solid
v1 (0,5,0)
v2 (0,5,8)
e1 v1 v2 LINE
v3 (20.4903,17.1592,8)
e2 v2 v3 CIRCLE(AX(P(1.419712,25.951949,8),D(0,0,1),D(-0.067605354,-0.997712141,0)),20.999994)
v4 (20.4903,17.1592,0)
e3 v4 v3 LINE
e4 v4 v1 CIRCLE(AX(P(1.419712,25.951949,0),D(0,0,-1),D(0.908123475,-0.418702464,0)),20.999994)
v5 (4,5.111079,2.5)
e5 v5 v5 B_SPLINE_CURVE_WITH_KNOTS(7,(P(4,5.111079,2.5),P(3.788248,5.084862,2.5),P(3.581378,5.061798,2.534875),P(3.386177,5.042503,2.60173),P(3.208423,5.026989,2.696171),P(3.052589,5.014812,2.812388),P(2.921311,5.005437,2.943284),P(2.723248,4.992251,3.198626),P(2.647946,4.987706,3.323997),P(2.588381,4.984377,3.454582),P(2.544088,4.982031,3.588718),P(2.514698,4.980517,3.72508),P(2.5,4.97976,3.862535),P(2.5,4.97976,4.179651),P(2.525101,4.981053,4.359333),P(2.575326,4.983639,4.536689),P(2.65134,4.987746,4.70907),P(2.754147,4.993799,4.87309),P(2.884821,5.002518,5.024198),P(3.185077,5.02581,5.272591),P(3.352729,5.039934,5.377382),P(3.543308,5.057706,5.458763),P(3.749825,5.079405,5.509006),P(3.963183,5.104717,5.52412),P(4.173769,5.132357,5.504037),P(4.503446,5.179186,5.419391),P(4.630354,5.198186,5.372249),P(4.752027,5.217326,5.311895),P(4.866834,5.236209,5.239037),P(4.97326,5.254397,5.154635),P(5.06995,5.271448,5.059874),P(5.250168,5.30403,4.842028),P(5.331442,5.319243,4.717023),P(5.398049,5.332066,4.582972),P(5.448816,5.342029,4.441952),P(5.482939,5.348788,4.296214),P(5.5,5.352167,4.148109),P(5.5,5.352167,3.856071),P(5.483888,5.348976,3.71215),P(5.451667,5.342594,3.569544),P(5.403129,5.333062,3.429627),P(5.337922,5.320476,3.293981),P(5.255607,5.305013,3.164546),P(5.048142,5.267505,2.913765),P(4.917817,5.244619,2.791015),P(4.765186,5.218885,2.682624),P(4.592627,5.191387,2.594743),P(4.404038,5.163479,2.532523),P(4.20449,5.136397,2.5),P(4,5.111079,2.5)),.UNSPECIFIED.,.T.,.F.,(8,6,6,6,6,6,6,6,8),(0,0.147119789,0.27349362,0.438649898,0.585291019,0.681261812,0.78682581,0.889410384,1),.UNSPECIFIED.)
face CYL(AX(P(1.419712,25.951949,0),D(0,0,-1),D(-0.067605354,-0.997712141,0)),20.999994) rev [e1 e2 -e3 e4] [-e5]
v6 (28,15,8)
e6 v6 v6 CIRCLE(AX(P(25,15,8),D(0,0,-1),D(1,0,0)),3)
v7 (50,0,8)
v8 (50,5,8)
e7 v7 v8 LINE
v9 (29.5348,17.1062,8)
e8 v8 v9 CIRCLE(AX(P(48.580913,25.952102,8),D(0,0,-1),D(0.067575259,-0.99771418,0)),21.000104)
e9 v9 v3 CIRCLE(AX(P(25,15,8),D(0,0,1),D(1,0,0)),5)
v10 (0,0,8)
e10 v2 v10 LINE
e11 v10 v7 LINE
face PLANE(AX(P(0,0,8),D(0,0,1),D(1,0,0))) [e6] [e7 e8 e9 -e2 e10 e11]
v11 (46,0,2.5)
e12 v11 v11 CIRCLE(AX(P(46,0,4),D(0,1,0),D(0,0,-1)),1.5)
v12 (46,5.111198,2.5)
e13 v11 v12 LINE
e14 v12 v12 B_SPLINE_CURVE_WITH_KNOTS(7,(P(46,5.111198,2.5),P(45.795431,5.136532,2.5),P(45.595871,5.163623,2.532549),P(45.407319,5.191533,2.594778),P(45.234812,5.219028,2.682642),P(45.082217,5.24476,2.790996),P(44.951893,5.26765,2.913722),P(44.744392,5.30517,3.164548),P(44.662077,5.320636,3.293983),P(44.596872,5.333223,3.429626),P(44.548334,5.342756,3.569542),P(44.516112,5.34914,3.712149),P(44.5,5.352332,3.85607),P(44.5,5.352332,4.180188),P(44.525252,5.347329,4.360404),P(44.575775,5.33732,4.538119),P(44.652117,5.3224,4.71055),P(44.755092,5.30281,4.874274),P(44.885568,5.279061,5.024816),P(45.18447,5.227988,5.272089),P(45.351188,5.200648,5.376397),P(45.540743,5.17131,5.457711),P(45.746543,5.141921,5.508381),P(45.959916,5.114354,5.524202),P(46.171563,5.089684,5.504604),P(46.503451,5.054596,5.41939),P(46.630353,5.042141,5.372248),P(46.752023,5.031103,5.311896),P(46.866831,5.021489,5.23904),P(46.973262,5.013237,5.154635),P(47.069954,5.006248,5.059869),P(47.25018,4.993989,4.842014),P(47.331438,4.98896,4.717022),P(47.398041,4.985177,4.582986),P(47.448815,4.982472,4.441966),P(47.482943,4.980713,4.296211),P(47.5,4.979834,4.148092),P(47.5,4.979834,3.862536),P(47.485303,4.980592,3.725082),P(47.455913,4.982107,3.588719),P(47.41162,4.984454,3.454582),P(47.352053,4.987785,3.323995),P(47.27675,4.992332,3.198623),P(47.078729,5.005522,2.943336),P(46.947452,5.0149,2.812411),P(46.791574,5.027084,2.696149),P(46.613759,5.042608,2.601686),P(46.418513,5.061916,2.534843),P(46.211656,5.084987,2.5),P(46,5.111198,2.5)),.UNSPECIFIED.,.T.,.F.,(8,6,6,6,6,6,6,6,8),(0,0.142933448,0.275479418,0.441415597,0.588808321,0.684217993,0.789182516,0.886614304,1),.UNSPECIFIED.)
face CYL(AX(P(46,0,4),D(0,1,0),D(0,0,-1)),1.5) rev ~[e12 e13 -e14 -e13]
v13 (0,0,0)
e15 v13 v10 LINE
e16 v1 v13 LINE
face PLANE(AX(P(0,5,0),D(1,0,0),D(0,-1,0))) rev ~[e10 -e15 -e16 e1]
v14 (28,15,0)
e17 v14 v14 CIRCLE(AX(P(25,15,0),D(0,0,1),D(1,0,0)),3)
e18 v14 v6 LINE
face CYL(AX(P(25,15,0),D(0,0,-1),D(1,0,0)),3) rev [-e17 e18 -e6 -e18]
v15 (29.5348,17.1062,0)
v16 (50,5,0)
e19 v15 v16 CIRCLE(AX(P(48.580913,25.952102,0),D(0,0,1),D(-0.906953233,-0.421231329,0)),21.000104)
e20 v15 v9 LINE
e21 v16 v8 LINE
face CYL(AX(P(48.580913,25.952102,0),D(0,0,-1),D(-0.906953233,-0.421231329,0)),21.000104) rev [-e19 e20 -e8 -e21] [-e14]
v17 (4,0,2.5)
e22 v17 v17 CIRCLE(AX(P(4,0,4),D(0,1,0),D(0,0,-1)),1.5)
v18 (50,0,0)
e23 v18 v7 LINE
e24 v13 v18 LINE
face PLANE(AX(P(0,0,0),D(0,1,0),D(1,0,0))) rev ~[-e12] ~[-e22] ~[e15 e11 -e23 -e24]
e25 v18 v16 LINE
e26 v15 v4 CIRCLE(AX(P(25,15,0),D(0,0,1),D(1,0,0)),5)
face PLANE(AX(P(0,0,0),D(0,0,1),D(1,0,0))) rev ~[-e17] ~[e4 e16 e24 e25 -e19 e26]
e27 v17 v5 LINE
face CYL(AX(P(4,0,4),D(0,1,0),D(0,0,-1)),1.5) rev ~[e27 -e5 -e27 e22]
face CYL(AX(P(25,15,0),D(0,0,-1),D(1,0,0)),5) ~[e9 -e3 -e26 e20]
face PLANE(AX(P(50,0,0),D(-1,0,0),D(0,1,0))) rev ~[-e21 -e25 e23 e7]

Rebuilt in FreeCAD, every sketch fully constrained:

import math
import FreeCAD as App
import Part
import Sketcher
from FreeCAD import Vector
Q = App.Units.Quantity

doc = App.newDocument("Part")
body = doc.addObject("PartDesign::Body", "Body")

sketch1 = body.newObject("Sketcher::SketchObject", "Sketch")
sketch1.AttachmentSupport = (doc.getObject("XY_Plane"), [""])
sketch1.MapMode = "FlatFace"
sketch1.addGeometry([
    Part.LineSegment(Vector(0, 5, 0), Vector(0, 0, 0)),
    Part.LineSegment(Vector(0, 0, 0), Vector(50, 0, 0)),
    Part.LineSegment(Vector(50, 0, 0), Vector(50, 5, 0)),
    Part.ArcOfCircle(Part.Circle(Vector(48.5808, 25.952, 0), Vector(0, 0, 1), 20.999959), math.radians(-155.087772), math.radians(-86.124945)),
    Part.ArcOfCircle(Part.Circle(Vector(25, 15, 0), Vector(0, 0, 1), 5), math.radians(24.912638), math.radians(154.415359)),
    Part.ArcOfCircle(Part.Circle(Vector(1.4197, 25.952, 0), Vector(0, 0, 1), 21.000044), math.radians(-93.876416), math.radians(-24.752807)),
    Part.Circle(Vector(25, 15, 0), Vector(0, 0, 1), 3),
], False)
sketch1.addConstraint([
    Sketcher.Constraint("Coincident", 0, 2, 1, 1),
    Sketcher.Constraint("Coincident", 1, 2, 2, 1),
    Sketcher.Constraint("Coincident", 2, 2, 3, 2),
    Sketcher.Constraint("Coincident", 3, 1, 4, 1),
    Sketcher.Constraint("Coincident", 4, 2, 5, 2),
    Sketcher.Constraint("Coincident", 5, 1, 0, 1),
    Sketcher.Constraint("Vertical", 0),
    Sketcher.Constraint("Horizontal", 1),
    Sketcher.Constraint("Vertical", 2),
    Sketcher.Constraint("Coincident", 0, 2, -1, 1),
    Sketcher.Constraint("Coincident", 6, 3, 4, 3),
    Sketcher.Constraint("Diameter", 6, Q("6 mm")),
    Sketcher.Constraint("Radius", 3, Q("21 mm")),
    Sketcher.Constraint("Radius", 4, Q("5 mm")),
    Sketcher.Constraint("Radius", 5, Q("21 mm")),
    Sketcher.Constraint("DistanceX", 1, 1, 1, 2, Q("50 mm")),
    Sketcher.Constraint("DistanceY", 0, 2, 0, 1, Q("5 mm")),
    Sketcher.Constraint("DistanceY", 2, 1, 2, 2, Q("5 mm")),
    Sketcher.Constraint("DistanceY", -1, 1, 4, 3, Q("15 mm")),
    Sketcher.Constraint("DistanceX", -1, 1, 4, 3, Q("25 mm")),
    Sketcher.Constraint("DistanceY", 5, 1, 4, 2, Q("12.1592 mm")),
    Sketcher.Constraint("DistanceX", 3, 1, 3, 3, Q("19.046 mm")),
])
pad1 = body.newObject("PartDesign::Pad", "Pad")
pad1.Profile = sketch1
pad1.Length = 8

sketch2 = body.newObject("Sketcher::SketchObject", "Sketch001")
sketch2.AttachmentSupport = (doc.getObject("XZ_Plane"), [""])
sketch2.MapMode = "FlatFace"
sketch2.addGeometry([
    Part.Circle(Vector(4, 4, 0), Vector(0, 0, 1), 1.5),
    Part.Circle(Vector(46, 4, 0), Vector(0, 0, 1), 1.5),
], False)
sketch2.addConstraint([
    Sketcher.Constraint("Equal", 0, 1),
    Sketcher.Constraint("Horizontal", 0, 3, 1, 3),
    Sketcher.Constraint("Diameter", 0, Q("3 mm")),
    Sketcher.Constraint("DistanceX", -1, 1, 0, 3, Q("4 mm")),
    Sketcher.Constraint("DistanceY", -1, 1, 0, 3, Q("4 mm")),
    Sketcher.Constraint("DistanceX", -1, 1, 1, 3, Q("46 mm")),
])
doc.recompute()
hole = body.newObject("PartDesign::Hole", "Hole")
hole.Profile = sketch2
hole.ThreadType = "None"
hole.Diameter = 3
hole.DepthType = "ThroughAll"

doc.recompute()
